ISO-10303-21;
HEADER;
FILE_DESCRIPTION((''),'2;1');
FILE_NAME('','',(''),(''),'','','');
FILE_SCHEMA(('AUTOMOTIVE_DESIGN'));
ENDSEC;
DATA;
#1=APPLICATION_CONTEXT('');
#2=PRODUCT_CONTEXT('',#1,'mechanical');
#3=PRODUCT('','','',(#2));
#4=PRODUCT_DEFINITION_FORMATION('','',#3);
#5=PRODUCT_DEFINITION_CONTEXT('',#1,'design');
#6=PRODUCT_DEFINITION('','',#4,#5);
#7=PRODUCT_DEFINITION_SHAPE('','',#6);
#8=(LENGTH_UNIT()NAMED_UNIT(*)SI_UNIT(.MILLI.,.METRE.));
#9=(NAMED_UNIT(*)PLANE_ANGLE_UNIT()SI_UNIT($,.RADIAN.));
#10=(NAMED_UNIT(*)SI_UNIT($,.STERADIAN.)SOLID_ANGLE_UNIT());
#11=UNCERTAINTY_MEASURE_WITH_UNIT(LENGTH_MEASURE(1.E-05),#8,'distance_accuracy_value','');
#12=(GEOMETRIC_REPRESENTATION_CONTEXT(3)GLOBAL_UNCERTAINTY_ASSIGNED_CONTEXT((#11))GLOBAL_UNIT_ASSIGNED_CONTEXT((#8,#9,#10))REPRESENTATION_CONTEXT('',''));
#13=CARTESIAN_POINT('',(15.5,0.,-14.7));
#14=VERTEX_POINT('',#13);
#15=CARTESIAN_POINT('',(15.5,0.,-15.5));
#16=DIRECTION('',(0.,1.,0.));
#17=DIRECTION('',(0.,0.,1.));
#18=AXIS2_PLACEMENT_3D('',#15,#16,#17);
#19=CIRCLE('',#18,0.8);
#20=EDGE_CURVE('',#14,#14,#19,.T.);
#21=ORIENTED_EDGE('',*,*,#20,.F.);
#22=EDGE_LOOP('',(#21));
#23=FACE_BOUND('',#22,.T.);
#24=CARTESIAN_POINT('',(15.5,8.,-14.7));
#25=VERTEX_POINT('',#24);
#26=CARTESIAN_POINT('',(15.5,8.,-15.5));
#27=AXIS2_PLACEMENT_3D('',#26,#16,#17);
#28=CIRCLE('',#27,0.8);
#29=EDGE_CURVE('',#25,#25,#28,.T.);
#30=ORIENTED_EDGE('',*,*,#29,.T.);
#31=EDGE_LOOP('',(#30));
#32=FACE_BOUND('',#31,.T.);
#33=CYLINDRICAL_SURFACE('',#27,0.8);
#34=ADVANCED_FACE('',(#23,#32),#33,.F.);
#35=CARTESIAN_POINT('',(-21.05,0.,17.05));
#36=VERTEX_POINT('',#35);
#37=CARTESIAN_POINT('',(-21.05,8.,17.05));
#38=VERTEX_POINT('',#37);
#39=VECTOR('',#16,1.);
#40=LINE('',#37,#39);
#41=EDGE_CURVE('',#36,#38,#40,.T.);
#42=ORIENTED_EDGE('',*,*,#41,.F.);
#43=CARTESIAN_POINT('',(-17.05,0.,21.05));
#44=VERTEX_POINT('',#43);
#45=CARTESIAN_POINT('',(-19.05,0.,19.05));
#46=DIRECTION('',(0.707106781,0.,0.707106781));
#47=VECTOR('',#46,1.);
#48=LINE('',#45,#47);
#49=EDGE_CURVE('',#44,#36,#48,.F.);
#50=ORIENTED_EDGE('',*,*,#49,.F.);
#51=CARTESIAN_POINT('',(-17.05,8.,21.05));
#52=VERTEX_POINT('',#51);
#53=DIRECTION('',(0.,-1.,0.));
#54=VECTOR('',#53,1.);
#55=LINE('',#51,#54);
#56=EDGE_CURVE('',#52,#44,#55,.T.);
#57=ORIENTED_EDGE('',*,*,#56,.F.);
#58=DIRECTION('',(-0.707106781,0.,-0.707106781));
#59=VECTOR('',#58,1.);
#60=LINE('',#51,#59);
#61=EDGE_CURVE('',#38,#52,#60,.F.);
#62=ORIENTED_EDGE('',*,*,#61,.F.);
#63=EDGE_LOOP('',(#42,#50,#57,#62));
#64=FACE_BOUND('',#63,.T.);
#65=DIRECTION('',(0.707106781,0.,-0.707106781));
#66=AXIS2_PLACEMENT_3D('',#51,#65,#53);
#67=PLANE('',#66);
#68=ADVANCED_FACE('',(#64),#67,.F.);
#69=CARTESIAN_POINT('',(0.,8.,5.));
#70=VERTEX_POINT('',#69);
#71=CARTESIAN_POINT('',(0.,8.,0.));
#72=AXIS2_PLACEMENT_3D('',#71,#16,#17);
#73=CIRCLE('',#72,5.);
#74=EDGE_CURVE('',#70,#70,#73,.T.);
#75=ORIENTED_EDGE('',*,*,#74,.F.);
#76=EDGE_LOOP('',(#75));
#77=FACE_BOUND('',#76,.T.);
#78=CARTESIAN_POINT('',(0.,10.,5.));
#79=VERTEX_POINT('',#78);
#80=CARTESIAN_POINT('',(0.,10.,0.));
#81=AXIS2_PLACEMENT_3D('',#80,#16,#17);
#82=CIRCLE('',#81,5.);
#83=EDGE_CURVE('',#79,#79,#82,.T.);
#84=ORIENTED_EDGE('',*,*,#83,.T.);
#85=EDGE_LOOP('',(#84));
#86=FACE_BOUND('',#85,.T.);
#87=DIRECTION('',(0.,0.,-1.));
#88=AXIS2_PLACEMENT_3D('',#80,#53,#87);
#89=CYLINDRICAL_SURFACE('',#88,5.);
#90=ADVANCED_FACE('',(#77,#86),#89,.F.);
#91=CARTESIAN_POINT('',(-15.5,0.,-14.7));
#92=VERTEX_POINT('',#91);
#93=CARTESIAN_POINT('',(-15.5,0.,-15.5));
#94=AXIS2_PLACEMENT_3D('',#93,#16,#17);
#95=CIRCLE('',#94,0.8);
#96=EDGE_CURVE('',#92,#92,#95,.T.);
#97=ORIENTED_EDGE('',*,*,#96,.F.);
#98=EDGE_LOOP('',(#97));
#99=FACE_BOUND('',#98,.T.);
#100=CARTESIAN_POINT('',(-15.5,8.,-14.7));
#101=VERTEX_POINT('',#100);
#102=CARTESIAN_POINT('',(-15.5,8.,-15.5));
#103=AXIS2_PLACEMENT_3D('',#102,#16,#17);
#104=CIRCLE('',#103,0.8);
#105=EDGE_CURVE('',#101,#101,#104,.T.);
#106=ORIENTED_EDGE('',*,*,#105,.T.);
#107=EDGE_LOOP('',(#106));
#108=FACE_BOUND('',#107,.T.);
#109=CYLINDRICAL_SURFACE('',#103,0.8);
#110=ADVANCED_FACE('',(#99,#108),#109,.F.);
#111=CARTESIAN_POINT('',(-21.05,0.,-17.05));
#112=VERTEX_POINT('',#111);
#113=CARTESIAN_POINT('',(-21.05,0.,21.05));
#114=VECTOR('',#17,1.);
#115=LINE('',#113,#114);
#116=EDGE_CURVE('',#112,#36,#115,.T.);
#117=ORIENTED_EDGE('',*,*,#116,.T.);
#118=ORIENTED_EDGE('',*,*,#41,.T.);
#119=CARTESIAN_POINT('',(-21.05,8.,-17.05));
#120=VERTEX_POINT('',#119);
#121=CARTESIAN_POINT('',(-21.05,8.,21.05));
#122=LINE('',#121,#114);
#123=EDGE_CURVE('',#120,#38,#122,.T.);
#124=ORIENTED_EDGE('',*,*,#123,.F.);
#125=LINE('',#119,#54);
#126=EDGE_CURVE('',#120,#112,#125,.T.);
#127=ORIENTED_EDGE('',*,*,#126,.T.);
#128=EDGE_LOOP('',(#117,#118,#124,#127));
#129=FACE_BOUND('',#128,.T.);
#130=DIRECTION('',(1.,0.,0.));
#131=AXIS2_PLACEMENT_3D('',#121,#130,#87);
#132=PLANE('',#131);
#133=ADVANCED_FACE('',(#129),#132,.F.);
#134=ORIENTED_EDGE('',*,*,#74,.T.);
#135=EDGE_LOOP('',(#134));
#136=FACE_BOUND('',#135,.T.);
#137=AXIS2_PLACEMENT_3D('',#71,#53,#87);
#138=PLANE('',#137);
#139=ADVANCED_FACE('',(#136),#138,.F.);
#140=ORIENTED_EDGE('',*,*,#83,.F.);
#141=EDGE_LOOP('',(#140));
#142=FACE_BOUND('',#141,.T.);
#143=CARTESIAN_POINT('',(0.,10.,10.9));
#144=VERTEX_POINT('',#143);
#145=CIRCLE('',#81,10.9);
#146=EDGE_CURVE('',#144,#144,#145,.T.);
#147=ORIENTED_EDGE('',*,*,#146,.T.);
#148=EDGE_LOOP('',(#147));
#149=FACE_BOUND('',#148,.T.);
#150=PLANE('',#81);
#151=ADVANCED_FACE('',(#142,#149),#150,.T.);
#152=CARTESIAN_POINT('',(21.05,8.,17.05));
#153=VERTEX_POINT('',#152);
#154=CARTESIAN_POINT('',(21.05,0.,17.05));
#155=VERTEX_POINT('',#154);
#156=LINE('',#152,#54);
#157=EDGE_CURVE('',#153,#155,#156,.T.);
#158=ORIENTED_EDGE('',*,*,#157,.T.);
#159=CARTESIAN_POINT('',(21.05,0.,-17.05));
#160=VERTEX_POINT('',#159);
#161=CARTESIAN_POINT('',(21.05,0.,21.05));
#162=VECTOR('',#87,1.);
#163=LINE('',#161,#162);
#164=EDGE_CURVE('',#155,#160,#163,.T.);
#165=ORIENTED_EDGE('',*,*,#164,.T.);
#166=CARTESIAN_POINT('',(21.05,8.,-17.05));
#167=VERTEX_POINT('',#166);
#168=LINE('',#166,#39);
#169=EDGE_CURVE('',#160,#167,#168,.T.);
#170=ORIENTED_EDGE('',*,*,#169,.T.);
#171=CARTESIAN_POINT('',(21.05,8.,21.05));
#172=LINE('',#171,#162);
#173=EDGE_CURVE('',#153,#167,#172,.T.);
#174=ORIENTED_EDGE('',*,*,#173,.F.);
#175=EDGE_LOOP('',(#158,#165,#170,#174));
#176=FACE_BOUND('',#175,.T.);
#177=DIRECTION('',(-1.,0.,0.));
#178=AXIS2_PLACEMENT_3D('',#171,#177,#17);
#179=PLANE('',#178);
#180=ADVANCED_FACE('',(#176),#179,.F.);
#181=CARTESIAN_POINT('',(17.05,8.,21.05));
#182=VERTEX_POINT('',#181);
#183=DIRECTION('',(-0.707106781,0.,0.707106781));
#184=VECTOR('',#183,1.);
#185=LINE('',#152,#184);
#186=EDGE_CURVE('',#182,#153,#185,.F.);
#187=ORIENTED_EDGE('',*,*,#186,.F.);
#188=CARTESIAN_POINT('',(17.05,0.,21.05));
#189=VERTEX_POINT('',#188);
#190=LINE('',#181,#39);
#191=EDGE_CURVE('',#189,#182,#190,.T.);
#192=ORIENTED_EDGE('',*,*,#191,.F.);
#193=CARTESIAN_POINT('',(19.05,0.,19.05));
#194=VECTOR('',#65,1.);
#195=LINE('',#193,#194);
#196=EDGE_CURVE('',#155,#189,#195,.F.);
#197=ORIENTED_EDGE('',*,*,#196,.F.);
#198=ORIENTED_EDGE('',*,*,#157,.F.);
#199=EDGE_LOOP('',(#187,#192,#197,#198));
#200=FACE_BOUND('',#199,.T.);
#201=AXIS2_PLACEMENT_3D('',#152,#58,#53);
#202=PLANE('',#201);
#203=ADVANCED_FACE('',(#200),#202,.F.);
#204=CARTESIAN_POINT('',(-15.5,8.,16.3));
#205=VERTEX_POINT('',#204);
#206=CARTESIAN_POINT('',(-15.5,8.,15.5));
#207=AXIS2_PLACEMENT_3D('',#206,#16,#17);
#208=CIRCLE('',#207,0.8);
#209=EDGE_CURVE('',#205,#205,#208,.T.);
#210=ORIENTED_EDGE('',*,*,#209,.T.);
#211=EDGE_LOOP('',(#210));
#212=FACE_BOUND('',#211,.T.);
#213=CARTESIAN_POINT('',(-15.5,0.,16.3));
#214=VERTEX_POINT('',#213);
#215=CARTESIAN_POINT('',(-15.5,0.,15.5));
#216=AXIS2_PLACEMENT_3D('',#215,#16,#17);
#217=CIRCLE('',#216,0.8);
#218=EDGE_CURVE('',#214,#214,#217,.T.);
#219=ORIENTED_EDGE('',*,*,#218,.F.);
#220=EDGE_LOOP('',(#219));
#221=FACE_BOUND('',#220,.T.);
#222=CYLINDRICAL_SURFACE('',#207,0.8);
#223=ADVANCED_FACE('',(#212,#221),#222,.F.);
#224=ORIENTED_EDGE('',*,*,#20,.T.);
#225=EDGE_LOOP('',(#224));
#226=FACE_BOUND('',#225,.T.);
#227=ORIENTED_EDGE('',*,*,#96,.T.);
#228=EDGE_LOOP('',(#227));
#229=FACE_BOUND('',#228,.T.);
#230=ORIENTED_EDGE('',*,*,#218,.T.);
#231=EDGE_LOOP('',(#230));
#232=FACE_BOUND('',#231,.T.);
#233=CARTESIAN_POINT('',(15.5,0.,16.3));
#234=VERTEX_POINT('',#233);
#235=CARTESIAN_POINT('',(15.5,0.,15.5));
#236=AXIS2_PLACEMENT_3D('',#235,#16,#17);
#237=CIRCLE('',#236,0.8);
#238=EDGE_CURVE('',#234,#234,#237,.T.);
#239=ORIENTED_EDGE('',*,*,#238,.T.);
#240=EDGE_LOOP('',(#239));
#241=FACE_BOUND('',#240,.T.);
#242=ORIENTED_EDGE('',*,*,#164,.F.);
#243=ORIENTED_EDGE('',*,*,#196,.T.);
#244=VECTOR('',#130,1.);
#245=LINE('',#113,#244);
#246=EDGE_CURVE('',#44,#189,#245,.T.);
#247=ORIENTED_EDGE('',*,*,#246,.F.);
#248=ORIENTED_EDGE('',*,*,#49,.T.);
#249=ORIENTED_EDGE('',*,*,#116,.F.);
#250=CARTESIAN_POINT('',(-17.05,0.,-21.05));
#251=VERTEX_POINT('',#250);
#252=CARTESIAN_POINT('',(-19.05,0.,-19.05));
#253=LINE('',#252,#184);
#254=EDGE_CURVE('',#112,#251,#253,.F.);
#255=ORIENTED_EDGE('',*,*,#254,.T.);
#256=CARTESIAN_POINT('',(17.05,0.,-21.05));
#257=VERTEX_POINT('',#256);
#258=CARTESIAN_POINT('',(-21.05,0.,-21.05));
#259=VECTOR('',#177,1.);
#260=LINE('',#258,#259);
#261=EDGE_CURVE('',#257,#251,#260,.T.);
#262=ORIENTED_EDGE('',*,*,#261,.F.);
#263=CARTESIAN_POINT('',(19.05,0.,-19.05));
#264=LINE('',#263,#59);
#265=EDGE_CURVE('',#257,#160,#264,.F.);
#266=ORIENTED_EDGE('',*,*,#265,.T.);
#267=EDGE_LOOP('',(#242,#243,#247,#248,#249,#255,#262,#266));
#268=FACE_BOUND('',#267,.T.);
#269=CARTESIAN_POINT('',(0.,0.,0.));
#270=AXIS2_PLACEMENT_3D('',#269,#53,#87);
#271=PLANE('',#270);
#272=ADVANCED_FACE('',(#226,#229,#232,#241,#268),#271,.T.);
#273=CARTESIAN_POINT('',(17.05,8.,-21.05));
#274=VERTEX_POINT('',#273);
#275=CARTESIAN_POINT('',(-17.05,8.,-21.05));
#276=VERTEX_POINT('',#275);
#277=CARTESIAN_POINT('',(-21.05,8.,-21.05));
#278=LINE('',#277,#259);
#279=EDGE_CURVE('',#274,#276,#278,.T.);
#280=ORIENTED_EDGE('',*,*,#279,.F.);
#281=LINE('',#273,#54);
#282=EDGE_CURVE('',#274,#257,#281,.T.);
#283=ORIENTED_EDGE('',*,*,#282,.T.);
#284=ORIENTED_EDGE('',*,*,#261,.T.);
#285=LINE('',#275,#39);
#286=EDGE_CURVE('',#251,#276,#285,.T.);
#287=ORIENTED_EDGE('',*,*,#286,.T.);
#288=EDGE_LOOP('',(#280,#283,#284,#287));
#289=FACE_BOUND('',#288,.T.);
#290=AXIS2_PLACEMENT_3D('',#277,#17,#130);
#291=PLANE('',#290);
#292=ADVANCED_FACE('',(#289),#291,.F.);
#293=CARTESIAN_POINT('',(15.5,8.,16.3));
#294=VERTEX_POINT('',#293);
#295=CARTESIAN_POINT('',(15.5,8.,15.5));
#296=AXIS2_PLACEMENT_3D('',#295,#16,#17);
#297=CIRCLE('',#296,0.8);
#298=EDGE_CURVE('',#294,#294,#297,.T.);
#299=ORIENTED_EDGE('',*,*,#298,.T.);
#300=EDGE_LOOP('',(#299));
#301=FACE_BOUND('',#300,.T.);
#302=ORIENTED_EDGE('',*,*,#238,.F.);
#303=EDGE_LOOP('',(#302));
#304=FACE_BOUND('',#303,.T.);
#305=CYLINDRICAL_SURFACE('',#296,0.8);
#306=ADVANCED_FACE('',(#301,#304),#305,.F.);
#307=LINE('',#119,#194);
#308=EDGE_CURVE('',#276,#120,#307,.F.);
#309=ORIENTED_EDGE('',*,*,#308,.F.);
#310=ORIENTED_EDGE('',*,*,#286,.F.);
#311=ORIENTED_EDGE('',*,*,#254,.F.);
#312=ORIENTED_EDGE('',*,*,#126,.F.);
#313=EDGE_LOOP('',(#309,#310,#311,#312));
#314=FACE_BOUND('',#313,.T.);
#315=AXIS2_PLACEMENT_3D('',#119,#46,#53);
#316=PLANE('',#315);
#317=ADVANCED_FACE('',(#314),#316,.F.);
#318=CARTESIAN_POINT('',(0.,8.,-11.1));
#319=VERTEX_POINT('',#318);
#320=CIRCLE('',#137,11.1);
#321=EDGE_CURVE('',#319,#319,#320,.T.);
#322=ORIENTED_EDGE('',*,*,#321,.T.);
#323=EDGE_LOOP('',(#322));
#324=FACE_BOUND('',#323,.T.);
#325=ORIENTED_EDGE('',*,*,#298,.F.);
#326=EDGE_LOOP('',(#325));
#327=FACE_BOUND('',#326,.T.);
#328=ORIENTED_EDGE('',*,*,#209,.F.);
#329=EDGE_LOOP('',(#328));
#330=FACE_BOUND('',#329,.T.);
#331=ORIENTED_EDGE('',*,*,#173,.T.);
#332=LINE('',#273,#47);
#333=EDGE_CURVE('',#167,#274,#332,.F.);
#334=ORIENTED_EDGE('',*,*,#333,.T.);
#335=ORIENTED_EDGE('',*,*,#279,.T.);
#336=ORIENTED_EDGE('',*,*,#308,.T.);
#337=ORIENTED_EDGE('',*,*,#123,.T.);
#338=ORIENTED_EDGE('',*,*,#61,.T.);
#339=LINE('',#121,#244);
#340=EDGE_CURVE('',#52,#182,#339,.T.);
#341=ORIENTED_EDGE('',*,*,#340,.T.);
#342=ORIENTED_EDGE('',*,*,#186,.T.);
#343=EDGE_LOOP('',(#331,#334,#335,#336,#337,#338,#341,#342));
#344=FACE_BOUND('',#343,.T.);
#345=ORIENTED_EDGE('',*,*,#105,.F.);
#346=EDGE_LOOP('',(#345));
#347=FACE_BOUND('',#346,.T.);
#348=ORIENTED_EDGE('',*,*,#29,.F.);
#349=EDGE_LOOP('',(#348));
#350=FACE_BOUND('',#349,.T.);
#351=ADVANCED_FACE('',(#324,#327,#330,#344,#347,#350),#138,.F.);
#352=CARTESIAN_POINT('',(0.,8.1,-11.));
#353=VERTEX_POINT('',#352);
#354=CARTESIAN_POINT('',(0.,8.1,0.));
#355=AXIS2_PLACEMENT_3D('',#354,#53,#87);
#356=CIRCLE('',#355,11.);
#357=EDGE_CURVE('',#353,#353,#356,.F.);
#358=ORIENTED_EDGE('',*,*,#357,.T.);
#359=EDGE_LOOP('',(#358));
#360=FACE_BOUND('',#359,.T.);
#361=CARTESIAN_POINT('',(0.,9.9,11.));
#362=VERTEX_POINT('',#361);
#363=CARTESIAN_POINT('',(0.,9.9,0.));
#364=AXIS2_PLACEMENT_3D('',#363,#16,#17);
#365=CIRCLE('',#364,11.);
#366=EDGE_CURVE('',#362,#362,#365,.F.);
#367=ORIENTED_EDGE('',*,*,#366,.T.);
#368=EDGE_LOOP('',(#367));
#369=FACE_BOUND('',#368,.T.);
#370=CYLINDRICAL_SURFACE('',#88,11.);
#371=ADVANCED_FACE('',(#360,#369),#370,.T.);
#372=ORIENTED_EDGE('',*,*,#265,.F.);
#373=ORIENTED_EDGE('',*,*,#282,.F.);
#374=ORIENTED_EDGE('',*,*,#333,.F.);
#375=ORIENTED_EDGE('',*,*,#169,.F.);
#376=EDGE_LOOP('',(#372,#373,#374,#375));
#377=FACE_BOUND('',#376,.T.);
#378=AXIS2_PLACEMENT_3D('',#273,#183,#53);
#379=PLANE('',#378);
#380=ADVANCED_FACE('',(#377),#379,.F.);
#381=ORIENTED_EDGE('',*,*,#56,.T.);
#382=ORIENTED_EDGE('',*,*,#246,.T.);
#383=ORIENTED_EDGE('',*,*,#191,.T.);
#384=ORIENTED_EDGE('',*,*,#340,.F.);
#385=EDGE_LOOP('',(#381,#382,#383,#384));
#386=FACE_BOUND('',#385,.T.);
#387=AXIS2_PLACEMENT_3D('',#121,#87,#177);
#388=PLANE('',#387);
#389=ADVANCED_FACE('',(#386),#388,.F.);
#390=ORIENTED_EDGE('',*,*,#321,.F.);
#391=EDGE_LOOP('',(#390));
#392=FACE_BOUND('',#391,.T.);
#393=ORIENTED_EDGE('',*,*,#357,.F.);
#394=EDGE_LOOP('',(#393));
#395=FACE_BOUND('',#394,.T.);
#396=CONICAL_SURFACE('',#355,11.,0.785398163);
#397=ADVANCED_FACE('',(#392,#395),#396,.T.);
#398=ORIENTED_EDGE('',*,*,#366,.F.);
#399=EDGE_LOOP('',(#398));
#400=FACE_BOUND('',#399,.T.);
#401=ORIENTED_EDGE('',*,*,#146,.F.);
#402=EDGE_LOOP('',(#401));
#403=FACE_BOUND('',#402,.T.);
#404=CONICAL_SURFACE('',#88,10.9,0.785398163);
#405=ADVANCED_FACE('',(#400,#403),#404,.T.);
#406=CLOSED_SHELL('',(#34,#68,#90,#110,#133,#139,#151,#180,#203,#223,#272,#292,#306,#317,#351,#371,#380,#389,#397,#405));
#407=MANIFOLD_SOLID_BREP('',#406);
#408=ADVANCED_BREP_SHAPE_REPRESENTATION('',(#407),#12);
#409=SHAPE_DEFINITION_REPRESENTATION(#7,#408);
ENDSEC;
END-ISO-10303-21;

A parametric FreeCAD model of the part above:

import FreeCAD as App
import Part
import Sketcher
from FreeCAD import Vector
Q = App.Units.Quantity


def edges_at(feature, points):
    """Names of the edges that pass closest to the given points."""
    edges = feature.Shape.Edges
    near = lambda p: min(range(len(edges)), key=lambda i: edges[i].distToShape(Part.Vertex(*p))[0])
    return sorted({f"Edge{near(p) + 1}" for p in points})

doc = App.newDocument("Part")
body = doc.addObject("PartDesign::Body", "Body")

sketch1 = doc.addObject("Sketcher::SketchObject", "Sketch")
body.addObject(sketch1)
sketch1.AttachmentSupport = (doc.XZ_Plane, [""])
sketch1.MapMode = "FlatFace"
sketch1.addGeometry([
    Part.LineSegment(Vector(-21.05, -21.05, 0), Vector(-21.05, 21.05, 0)),
    Part.LineSegment(Vector(-21.05, 21.05, 0), Vector(21.05, 21.05, 0)),
    Part.LineSegment(Vector(21.05, 21.05, 0), Vector(21.05, -21.05, 0)),
    Part.LineSegment(Vector(21.05, -21.05, 0), Vector(-21.05, -21.05, 0)),
], False)
sketch1.addConstraint([
    Sketcher.Constraint("Coincident", 0, 2, 1, 1),
    Sketcher.Constraint("Coincident", 1, 2, 2, 1),
    Sketcher.Constraint("Coincident", 2, 2, 3, 1),
    Sketcher.Constraint("Coincident", 3, 2, 0, 1),
    Sketcher.Constraint("Vertical", 0),
    Sketcher.Constraint("Horizontal", 1),
    Sketcher.Constraint("Vertical", 2),
    Sketcher.Constraint("Horizontal", 3),
    Sketcher.Constraint("Symmetric", 0, 2, 2, 2, -1, 1),
    Sketcher.Constraint("Equal", 3, 0),
    Sketcher.Constraint("DistanceX", 1, 1, 1, 2, Q("42.1 mm")),
])
pad1 = doc.addObject("PartDesign::Pad", "Pad")
body.addObject(pad1)
pad1.Profile = sketch1
pad1.Length = 8
pad1.Reversed = True
doc.recompute()

chamfer = doc.addObject("PartDesign::Chamfer", "Chamfer")
body.addObject(chamfer)
chamfer.Base = (pad1, edges_at(pad1, [
    (21.05, 4, 21.05),
    (-21.05, 4, 21.05),
    (-21.05, 4, -21.05),
    (21.05, 4, -21.05),
]))
chamfer.Size = 4

sketch2 = doc.addObject("Sketcher::SketchObject", "Sketch001")
body.addObject(sketch2)
sketch2.AttachmentSupport = (doc.XZ_Plane, [""])
sketch2.MapMode = "FlatFace"
sketch2.AttachmentOffset = App.Placement(Vector(0, 0, -8), App.Rotation())
sketch2.addGeometry([
    Part.Circle(Vector(0, 0, 0), Vector(0, 0, 1), 11),
    Part.Circle(Vector(0, 0, 0), Vector(0, 0, 1), 5),
], False)
sketch2.addConstraint([
    Sketcher.Constraint("Coincident", 0, 3, -1, 1),
    Sketcher.Constraint("Coincident", 1, 3, -1, 1),
    Sketcher.Constraint("Diameter", 0, Q("22 mm")),
    Sketcher.Constraint("Diameter", 1, Q("10 mm")),
])
pad2 = doc.addObject("PartDesign::Pad", "Pad001")
body.addObject(pad2)
pad2.Profile = sketch2
pad2.Length = 2
pad2.Reversed = True
doc.recompute()

chamfer2 = doc.addObject("PartDesign::Chamfer", "Chamfer001")
body.addObject(chamfer2)
chamfer2.Base = (pad2, edges_at(pad2, [(-11, 8, 0), (-11, 10, 0)]))
chamfer2.Size = 0.1

sketch3 = doc.addObject("Sketcher::SketchObject", "Sketch002")
body.addObject(sketch3)
sketch3.AttachmentSupport = (doc.XZ_Plane, [""])
sketch3.MapMode = "FlatFace"
sketch3.AttachmentOffset = App.Placement(Vector(0, 0, -8), App.Rotation())
sketch3.addGeometry([
    Part.Circle(Vector(-15.5, -15.5, 0), Vector(0, 0, 1), 0.8),
    Part.Circle(Vector(15.5, -15.5, 0), Vector(0, 0, 1), 0.8),
    Part.Circle(Vector(15.5, 15.5, 0), Vector(0, 0, 1), 0.8),
    Part.Circle(Vector(-15.5, 15.5, 0), Vector(0, 0, 1), 0.8),
], False)
sketch3.addConstraint([
    Sketcher.Constraint("Equal", 0, 1),
    Sketcher.Constraint("Equal", 1, 2),
    Sketcher.Constraint("Equal", 2, 3),
    Sketcher.Constraint("Symmetric", 0, 3, 2, 3, -1, 1),
    Sketcher.Constraint("Symmetric", 1, 3, 3, 3, -1, 1),
    Sketcher.Constraint("Symmetric", 0, 3, 1, 3, -2),
    Sketcher.Constraint("Diameter", 0, Q("1.6 mm")),
    Sketcher.Constraint("DistanceX", 0, 3, 1, 3, Q("31 mm")),
    Sketcher.Constraint("DistanceY", 1, 3, 2, 3, Q("31 mm")),
])
doc.recompute()
hole = doc.addObject("PartDesign::Hole", "Hole")
body.addObject(hole)
hole.Profile = sketch3
hole.ThreadType = "None"
hole.Diameter = 1.6
hole.DepthType = "Dimension"
hole.Depth = 8
hole.DrillPoint = "Angled"
hole.DrillPointAngle = 118
hole.Reversed = True

doc.recompute()
